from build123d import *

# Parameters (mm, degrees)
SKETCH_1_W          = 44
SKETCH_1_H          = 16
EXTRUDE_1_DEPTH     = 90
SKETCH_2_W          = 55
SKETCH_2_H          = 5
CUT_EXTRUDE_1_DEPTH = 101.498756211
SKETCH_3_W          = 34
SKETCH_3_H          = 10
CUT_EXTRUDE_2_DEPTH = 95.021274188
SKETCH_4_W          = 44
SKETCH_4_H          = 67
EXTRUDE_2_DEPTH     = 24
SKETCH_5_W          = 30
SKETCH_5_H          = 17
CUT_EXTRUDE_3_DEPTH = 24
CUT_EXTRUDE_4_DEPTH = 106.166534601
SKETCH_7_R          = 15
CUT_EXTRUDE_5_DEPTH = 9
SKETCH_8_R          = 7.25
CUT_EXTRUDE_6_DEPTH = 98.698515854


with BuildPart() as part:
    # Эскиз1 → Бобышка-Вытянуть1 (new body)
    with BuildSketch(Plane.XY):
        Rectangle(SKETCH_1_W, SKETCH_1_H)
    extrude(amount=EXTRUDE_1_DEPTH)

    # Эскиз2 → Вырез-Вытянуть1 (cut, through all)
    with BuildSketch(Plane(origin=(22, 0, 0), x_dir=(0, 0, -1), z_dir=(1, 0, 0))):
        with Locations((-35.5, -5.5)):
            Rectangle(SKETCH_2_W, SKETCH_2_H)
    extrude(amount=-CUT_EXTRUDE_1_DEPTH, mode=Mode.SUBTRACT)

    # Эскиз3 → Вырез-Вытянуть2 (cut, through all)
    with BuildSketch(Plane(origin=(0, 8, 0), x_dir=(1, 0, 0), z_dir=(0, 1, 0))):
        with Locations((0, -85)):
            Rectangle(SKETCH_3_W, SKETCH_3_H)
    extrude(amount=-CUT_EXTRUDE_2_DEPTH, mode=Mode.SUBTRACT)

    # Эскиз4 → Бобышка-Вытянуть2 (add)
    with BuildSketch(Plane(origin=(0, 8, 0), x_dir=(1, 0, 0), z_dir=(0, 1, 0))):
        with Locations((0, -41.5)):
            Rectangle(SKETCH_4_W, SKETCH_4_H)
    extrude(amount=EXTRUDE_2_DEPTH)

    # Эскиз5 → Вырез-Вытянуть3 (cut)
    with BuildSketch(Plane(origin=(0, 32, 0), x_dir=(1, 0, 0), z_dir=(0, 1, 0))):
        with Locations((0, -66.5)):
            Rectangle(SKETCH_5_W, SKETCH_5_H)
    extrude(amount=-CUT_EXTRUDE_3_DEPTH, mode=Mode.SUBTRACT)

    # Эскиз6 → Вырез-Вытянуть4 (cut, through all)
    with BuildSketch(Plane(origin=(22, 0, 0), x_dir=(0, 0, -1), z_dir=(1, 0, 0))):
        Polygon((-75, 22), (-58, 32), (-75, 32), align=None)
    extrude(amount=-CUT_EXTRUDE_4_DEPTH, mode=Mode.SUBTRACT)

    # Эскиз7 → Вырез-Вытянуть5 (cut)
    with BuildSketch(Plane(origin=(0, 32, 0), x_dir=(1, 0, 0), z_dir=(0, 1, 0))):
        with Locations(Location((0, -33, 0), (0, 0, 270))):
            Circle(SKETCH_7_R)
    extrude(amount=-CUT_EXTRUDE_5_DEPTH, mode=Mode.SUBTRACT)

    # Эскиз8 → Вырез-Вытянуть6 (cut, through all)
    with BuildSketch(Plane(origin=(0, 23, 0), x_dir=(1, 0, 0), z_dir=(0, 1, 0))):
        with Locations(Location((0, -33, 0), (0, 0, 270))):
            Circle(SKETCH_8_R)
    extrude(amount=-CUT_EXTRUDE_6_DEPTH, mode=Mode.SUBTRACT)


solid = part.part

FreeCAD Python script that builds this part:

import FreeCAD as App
import Part
import Sketcher

doc = App.newDocument("Part")
body = doc.addObject("PartDesign::Body", "Body")

sketch1 = body.newObject("Sketcher::SketchObject", "Sketch")
sketch1.AttachmentSupport = (doc.getObject("XY_Plane"), [""])
sketch1.MapMode = "FlatFace"
sketch1.addGeometry([
    Part.LineSegment(App.Vector(-22, 8, 0), App.Vector(-22, -8, 0)),
    Part.LineSegment(App.Vector(-22, -8, 0), App.Vector(22, -8, 0)),
    Part.LineSegment(App.Vector(22, -8, 0), App.Vector(22, 8, 0)),
    Part.LineSegment(App.Vector(22, 8, 0), App.Vector(-22, 8, 0)),
], False)
sketch1.addConstraint([
    Sketcher.Constraint("Coincident", 0, 2, 1, 1),
    Sketcher.Constraint("Coincident", 1, 2, 2, 1),
    Sketcher.Constraint("Coincident", 2, 2, 3, 1),
    Sketcher.Constraint("Coincident", 3, 2, 0, 1),
    Sketcher.Constraint("Vertical", 0),
    Sketcher.Constraint("Horizontal", 1),
    Sketcher.Constraint("Vertical", 2),
    Sketcher.Constraint("Horizontal", 3),
    Sketcher.Constraint("Symmetric", 0, 2, 2, 2, -1, 1),
    Sketcher.Constraint("DistanceX", 1, 1, 1, 2, 44.0),
    Sketcher.Constraint("DistanceY", 0, 2, 0, 1, 16.0),
])
pad1 = body.newObject("PartDesign::Pad", "Pad")
pad1.Profile = sketch1
pad1.Length = 90

sketch2 = body.newObject("Sketcher::SketchObject", "Sketch001")
sketch2.AttachmentSupport = (doc.getObject("YZ_Plane"), [""])
sketch2.MapMode = "FlatFace"
sketch2.AttachmentOffset = App.Placement(App.Vector(0, 0, 22), App.Rotation())
sketch2.addGeometry([
    Part.LineSegment(App.Vector(-3, 63, 0), App.Vector(-8, 63, 0)),
    Part.LineSegment(App.Vector(-8, 63, 0), App.Vector(-8, 8, 0)),
    Part.LineSegment(App.Vector(-8, 8, 0), App.Vector(-3, 8, 0)),
    Part.LineSegment(App.Vector(-3, 8, 0), App.Vector(-3, 63, 0)),
], False)
sketch2.addConstraint([
    Sketcher.Constraint("Coincident", 0, 2, 1, 1),
    Sketcher.Constraint("Coincident", 1, 2, 2, 1),
    Sketcher.Constraint("Coincident", 2, 2, 3, 1),
    Sketcher.Constraint("Coincident", 3, 2, 0, 1),
    Sketcher.Constraint("Horizontal", 0),
    Sketcher.Constraint("Vertical", 1),
    Sketcher.Constraint("Horizontal", 2),
    Sketcher.Constraint("Vertical", 3),
    Sketcher.Constraint("DistanceX", 0, 2, 0, 1, 5.0),
    Sketcher.Constraint("DistanceY", 1, 2, 1, 1, 55.0),
    Sketcher.Constraint("DistanceX", 0, 2, -1, 1, 8.0),
    Sketcher.Constraint("DistanceY", -1, 1, 0, 2, 63.0),
])
pocket1 = body.newObject("PartDesign::Pocket", "Pocket")
pocket1.Profile = sketch2
pocket1.Type = "ThroughAll"

sketch3 = body.newObject("Sketcher::SketchObject", "Sketch002")
sketch3.AttachmentSupport = (doc.getObject("XZ_Plane"), [""])
sketch3.MapMode = "FlatFace"
sketch3.AttachmentOffset = App.Placement(App.Vector(0, 0, -8), App.Rotation())
sketch3.addGeometry([
    Part.LineSegment(App.Vector(-17, 80, 0), App.Vector(-17, 90, 0)),
    Part.LineSegment(App.Vector(-17, 90, 0), App.Vector(17, 90, 0)),
    Part.LineSegment(App.Vector(17, 90, 0), App.Vector(17, 80, 0)),
    Part.LineSegment(App.Vector(17, 80, 0), App.Vector(-17, 80, 0)),
], False)
sketch3.addConstraint([
    Sketcher.Constraint("Coincident", 0, 2, 1, 1),
    Sketcher.Constraint("Coincident", 1, 2, 2, 1),
    Sketcher.Constraint("Coincident", 2, 2, 3, 1),
    Sketcher.Constraint("Coincident", 3, 2, 0, 1),
    Sketcher.Constraint("Vertical", 0),
    Sketcher.Constraint("Horizontal", 1),
    Sketcher.Constraint("Vertical", 2),
    Sketcher.Constraint("Horizontal", 3),
    Sketcher.Constraint("DistanceX", 1, 1, 1, 2, 34.0),
    Sketcher.Constraint("DistanceY", 0, 1, 0, 2, 10.0),
    Sketcher.Constraint("DistanceX", 0, 2, -1, 1, 17.0),
    Sketcher.Constraint("DistanceY", -1, 1, 0, 2, 90.0),
])
pocket2 = body.newObject("PartDesign::Pocket", "Pocket001")
pocket2.Profile = sketch3
pocket2.Type = "ThroughAll"
pocket2.Reversed = True

sketch4 = body.newObject("Sketcher::SketchObject", "Sketch003")
sketch4.AttachmentSupport = (doc.getObject("XZ_Plane"), [""])
sketch4.MapMode = "FlatFace"
sketch4.AttachmentOffset = App.Placement(App.Vector(0, 0, -8), App.Rotation())
sketch4.addGeometry([
    Part.LineSegment(App.Vector(-22, 8, 0), App.Vector(-22, 75, 0)),
    Part.LineSegment(App.Vector(-22, 75, 0), App.Vector(22, 75, 0)),
    Part.LineSegment(App.Vector(22, 75, 0), App.Vector(22, 8, 0)),
    Part.LineSegment(App.Vector(22, 8, 0), App.Vector(-22, 8, 0)),
], False)
sketch4.addConstraint([
    Sketcher.Constraint("Coincident", 0, 2, 1, 1),
    Sketcher.Constraint("Coincident", 1, 2, 2, 1),
    Sketcher.Constraint("Coincident", 2, 2, 3, 1),
    Sketcher.Constraint("Coincident", 3, 2, 0, 1),
    Sketcher.Constraint("Vertical", 0),
    Sketcher.Constraint("Horizontal", 1),
    Sketcher.Constraint("Vertical", 2),
    Sketcher.Constraint("Horizontal", 3),
    Sketcher.Constraint("DistanceX", 1, 1, 1, 2, 44.0),
    Sketcher.Constraint("DistanceY", 0, 1, 0, 2, 67.0),
    Sketcher.Constraint("DistanceX", 0, 2, -1, 1, 22.0),
    Sketcher.Constraint("DistanceY", -1, 1, 0, 2, 75.0),
])
pad2 = body.newObject("PartDesign::Pad", "Pad001")
pad2.Profile = sketch4
pad2.Length = 24
pad2.Reversed = True

sketch5 = body.newObject("Sketcher::SketchObject", "Sketch004")
sketch5.AttachmentSupport = (doc.getObject("XZ_Plane"), [""])
sketch5.MapMode = "FlatFace"
sketch5.AttachmentOffset = App.Placement(App.Vector(0, 0, -32), App.Rotation())
sketch5.addGeometry([
    Part.LineSegment(App.Vector(-15, 58, 0), App.Vector(-15, 75, 0)),
    Part.LineSegment(App.Vector(-15, 75, 0), App.Vector(15, 75, 0)),
    Part.LineSegment(App.Vector(15, 75, 0), App.Vector(15, 58, 0)),
    Part.LineSegment(App.Vector(15, 58, 0), App.Vector(-15, 58, 0)),
], False)
sketch5.addConstraint([
    Sketcher.Constraint("Coincident", 0, 2, 1, 1),
    Sketcher.Constraint("Coincident", 1, 2, 2, 1),
    Sketcher.Constraint("Coincident", 2, 2, 3, 1),
    Sketcher.Constraint("Coincident", 3, 2, 0, 1),
    Sketcher.Constraint("Vertical", 0),
    Sketcher.Constraint("Horizontal", 1),
    Sketcher.Constraint("Vertical", 2),
    Sketcher.Constraint("Horizontal", 3),
    Sketcher.Constraint("DistanceX", 1, 1, 1, 2, 30.0),
    Sketcher.Constraint("DistanceY", 0, 1, 0, 2, 17.0),
    Sketcher.Constraint("DistanceX", 0, 2, -1, 1, 15.0),
    Sketcher.Constraint("DistanceY", -1, 1, 0, 2, 75.0),
])
pocket3 = body.newObject("PartDesign::Pocket", "Pocket002")
pocket3.Profile = sketch5
pocket3.Length = 24
pocket3.Reversed = True

sketch6 = body.newObject("Sketcher::SketchObject", "Sketch005")
sketch6.AttachmentSupport = (doc.getObject("YZ_Plane"), [""])
sketch6.MapMode = "FlatFace"
sketch6.AttachmentOffset = App.Placement(App.Vector(0, 0, 22), App.Rotation())
sketch6.addGeometry([
    Part.LineSegment(App.Vector(22, 75, 0), App.Vector(32, 58, 0)),
    Part.LineSegment(App.Vector(32, 58, 0), App.Vector(32, 75, 0)),
    Part.LineSegment(App.Vector(32, 75, 0), App.Vector(22, 75, 0)),
], False)
sketch6.addConstraint([
    Sketcher.Constraint("Coincident", 0, 2, 1, 1),
    Sketcher.Constraint("Coincident", 1, 2, 2, 1),
    Sketcher.Constraint("Coincident", 2, 2, 0, 1),
    Sketcher.Constraint("Vertical", 1),
    Sketcher.Constraint("Horizontal", 2),
    Sketcher.Constraint("DistanceX", 2, 2, 2, 1, 10.0),
    Sketcher.Constraint("DistanceY", 1, 1, 1, 2, 17.0),
    Sketcher.Constraint("DistanceX", -1, 1, 0, 2, 32.0),
    Sketcher.Constraint("DistanceY", -1, 1, 0, 2, 58.0),
])
pocket4 = body.newObject("PartDesign::Pocket", "Pocket003")
pocket4.Profile = sketch6
pocket4.Type = "ThroughAll"

sketch7 = body.newObject("Sketcher::SketchObject", "Sketch006")
sketch7.AttachmentSupport = (doc.getObject("XZ_Plane"), [""])
sketch7.MapMode = "FlatFace"
sketch7.AttachmentOffset = App.Placement(App.Vector(0, 0, -32), App.Rotation())
sketch7.addGeometry(Part.Circle(App.Vector(0, 33, 0), App.Vector(0, 0, 1), 15), False)
sketch7.addConstraint([
    Sketcher.Constraint("PointOnObject", 0, 3, -2),
    Sketcher.Constraint("Diameter", 0, 30.0),
    Sketcher.Constraint("DistanceY", -1, 1, 0, 3, 33.0),
])
pocket5 = body.newObject("PartDesign::Pocket", "Pocket004")
pocket5.Profile = sketch7
pocket5.Length = 9
pocket5.Reversed = True

sketch8 = body.newObject("Sketcher::SketchObject", "Sketch007")
sketch8.AttachmentSupport = (doc.getObject("XZ_Plane"), [""])
sketch8.MapMode = "FlatFace"
sketch8.AttachmentOffset = App.Placement(App.Vector(0, 0, -23), App.Rotation())
sketch8.addGeometry(Part.Circle(App.Vector(0, 33, 0), App.Vector(0, 0, 1), 7), False)
sketch8.addConstraint([
    Sketcher.Constraint("PointOnObject", 0, 3, -2),
    Sketcher.Constraint("Diameter", 0, 14.5),
    Sketcher.Constraint("DistanceY", -1, 1, 0, 3, 33.0),
])
pocket6 = body.newObject("PartDesign::Pocket", "Pocket005")
pocket6.Profile = sketch8
pocket6.Type = "ThroughAll"
pocket6.Reversed = True

doc.recompute()
